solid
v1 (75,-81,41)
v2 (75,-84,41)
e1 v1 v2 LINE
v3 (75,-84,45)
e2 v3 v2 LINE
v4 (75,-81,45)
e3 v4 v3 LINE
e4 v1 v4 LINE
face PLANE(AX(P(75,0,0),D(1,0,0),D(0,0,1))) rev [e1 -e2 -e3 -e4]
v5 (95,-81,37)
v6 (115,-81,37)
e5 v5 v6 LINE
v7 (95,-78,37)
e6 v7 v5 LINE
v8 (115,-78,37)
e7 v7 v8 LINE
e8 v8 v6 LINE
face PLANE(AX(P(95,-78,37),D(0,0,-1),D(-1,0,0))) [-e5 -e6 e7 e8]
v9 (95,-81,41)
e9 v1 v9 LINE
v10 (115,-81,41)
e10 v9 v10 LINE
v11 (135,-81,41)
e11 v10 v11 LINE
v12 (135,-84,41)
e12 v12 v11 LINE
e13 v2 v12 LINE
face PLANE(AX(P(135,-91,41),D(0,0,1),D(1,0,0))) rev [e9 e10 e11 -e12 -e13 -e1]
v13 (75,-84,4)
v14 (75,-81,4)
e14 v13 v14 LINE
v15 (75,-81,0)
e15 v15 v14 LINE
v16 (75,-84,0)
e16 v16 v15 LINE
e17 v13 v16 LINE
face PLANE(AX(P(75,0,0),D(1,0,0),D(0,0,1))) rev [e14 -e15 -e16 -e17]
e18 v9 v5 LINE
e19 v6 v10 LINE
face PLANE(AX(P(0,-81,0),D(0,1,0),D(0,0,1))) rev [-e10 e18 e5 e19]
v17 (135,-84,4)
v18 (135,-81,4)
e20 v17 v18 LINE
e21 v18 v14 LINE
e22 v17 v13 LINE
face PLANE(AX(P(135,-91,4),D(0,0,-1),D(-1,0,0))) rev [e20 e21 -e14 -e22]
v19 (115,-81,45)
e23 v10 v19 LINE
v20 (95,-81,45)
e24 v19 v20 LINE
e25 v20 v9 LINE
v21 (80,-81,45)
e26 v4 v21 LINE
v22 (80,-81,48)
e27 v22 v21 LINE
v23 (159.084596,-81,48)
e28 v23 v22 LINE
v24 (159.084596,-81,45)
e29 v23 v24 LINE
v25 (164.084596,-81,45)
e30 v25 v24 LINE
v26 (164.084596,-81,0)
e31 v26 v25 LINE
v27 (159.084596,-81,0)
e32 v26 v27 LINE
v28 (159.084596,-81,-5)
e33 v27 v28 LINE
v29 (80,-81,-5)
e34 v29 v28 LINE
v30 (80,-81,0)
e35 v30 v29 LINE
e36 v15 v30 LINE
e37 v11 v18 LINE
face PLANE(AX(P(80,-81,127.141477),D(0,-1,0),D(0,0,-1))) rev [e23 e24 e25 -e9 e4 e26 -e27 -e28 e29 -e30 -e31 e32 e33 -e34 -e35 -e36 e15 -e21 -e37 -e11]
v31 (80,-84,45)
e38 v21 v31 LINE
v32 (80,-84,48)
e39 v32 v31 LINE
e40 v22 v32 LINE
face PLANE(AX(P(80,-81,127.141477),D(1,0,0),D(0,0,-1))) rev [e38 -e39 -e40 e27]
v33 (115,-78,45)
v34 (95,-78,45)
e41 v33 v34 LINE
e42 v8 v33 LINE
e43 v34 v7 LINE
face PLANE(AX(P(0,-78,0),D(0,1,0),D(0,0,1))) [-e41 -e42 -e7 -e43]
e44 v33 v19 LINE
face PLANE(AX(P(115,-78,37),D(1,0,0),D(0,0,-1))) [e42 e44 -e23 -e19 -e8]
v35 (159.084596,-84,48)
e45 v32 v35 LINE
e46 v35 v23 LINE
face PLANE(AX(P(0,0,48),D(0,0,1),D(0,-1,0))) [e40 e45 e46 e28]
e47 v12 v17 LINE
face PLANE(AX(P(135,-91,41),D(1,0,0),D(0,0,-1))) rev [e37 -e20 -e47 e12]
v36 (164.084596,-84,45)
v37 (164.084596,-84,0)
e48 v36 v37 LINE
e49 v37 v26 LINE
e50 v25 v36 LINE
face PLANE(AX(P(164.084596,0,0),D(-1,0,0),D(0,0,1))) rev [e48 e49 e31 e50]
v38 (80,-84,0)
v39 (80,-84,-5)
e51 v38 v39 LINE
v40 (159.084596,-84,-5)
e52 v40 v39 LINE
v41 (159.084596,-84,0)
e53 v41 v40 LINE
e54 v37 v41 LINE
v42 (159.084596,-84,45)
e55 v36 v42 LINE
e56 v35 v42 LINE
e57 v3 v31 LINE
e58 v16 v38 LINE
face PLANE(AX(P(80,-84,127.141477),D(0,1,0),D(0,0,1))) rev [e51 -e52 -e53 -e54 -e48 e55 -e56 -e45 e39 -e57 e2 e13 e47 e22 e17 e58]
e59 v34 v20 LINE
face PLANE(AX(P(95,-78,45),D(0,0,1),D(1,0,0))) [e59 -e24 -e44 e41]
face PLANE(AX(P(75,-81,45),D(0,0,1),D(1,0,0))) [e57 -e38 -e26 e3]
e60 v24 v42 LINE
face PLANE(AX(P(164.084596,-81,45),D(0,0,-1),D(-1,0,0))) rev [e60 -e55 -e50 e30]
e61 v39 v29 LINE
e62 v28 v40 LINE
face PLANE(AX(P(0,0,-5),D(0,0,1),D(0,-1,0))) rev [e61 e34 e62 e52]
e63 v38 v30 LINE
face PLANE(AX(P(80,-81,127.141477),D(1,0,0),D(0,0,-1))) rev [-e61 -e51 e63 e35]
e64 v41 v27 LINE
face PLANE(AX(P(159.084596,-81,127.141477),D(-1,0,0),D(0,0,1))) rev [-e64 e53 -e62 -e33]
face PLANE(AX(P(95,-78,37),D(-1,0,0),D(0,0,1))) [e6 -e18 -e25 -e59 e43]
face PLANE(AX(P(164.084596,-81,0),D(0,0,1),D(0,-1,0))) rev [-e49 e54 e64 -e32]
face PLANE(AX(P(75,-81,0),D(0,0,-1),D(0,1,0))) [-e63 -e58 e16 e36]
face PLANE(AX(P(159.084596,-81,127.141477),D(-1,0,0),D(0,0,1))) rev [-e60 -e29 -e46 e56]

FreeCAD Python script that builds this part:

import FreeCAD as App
import Part
import Sketcher

V = App.Vector

doc = App.newDocument("Part")
body = doc.addObject("PartDesign::Body", "Body")

sketch1 = doc.addObject("Sketcher::SketchObject", "Sketch")
body.addObject(sketch1)
sketch1.AttachmentSupport = (doc.XY_Plane, [""])
sketch1.MapMode = "FlatFace"
sketch1.addGeometry([
    Part.LineSegment(V(80, -81, 0), V(80, -84, 0)),
    Part.LineSegment(V(80, -84, 0), V(159.084596, -84, 0)),
    Part.LineSegment(V(159.084596, -84, 0), V(159.084596, -81, 0)),
    Part.LineSegment(V(159.084596, -81, 0), V(80, -81, 0)),
], False)
sketch1.addConstraint([
    Sketcher.Constraint("Coincident", 0, 2, 1, 1),
    Sketcher.Constraint("Coincident", 1, 2, 2, 1),
    Sketcher.Constraint("Coincident", 2, 2, 3, 1),
    Sketcher.Constraint("Coincident", 3, 2, 0, 1),
    Sketcher.Constraint("Vertical", 0),
    Sketcher.Constraint("Horizontal", 1),
    Sketcher.Constraint("Vertical", 2),
    Sketcher.Constraint("Horizontal", 3),
    Sketcher.Constraint("DistanceY", 0, 2, 0, 1, 3.0),
    Sketcher.Constraint("DistanceX", -1, 1, 0, 2, 80.0),
    Sketcher.Constraint("DistanceY", 0, 2, -1, 1, 84.0),
    Sketcher.Constraint("DistanceX", 1, 1, 1, 2, 79.084596),
])
pad1 = doc.addObject("PartDesign::Pad", "Pad")
body.addObject(pad1)
pad1.Profile = sketch1
pad1.Type = "TwoLengths"
pad1.Length = 48
pad1.Length2 = 5

sketch2 = doc.addObject("Sketcher::SketchObject", "Sketch001")
body.addObject(sketch2)
sketch2.AttachmentSupport = (doc.YZ_Plane, [""])
sketch2.MapMode = "FlatFace"
sketch2.AttachmentOffset = App.Placement(V(0, 0, 159.084596), App.Rotation())
sketch2.addGeometry([
    Part.LineSegment(V(-81, 45, 0), V(-84, 45, 0)),
    Part.LineSegment(V(-84, 45, 0), V(-84, 0, 0)),
    Part.LineSegment(V(-84, 0, 0), V(-81, 0, 0)),
    Part.LineSegment(V(-81, 0, 0), V(-81, 45, 0)),
], False)
sketch2.addConstraint([
    Sketcher.Constraint("Coincident", 0, 2, 1, 1),
    Sketcher.Constraint("Coincident", 1, 2, 2, 1),
    Sketcher.Constraint("Coincident", 2, 2, 3, 1),
    Sketcher.Constraint("Coincident", 3, 2, 0, 1),
    Sketcher.Constraint("Horizontal", 0),
    Sketcher.Constraint("Vertical", 1),
    Sketcher.Constraint("Horizontal", 2),
    Sketcher.Constraint("Vertical", 3),
    Sketcher.Constraint("PointOnObject", 1, 2, -1),
    Sketcher.Constraint("DistanceX", 0, 2, 0, 1, 3.0),
    Sketcher.Constraint("DistanceY", 1, 2, 1, 1, 45.0),
    Sketcher.Constraint("DistanceX", 0, 2, -1, 1, 84.0),
])
pad2 = doc.addObject("PartDesign::Pad", "Pad001")
body.addObject(pad2)
pad2.Profile = sketch2
pad2.Length = 5
doc.recompute()

datumplane = doc.addObject("PartDesign::Plane", "DatumPlane")
body.addObject(datumplane)
datumplane.AttachmentSupport = (doc.YZ_Plane, [""])
datumplane.MapMode = "FlatFace"
datumplane.AttachmentOffset = App.Placement(V(0, 0, 119.542298), App.Rotation())
mirrored = doc.addObject("PartDesign::Mirrored", "Mirrored")
body.addObject(mirrored)
mirrored.Originals = [pad2]
mirrored.MirrorPlane = (datumplane, [""])
body.Tip = mirrored

sketch3 = doc.addObject("Sketcher::SketchObject", "Sketch002")
body.addObject(sketch3)
sketch3.AttachmentSupport = (doc.XZ_Plane, [""])
sketch3.MapMode = "FlatFace"
sketch3.AttachmentOffset = App.Placement(V(0, 0, 81), App.Rotation())
sketch3.addGeometry([
    Part.LineSegment(V(75, 4, 0), V(75, 41, 0)),
    Part.LineSegment(V(75, 41, 0), V(135, 41, 0)),
    Part.LineSegment(V(135, 41, 0), V(135, 4, 0)),
    Part.LineSegment(V(135, 4, 0), V(75, 4, 0)),
], False)
sketch3.addConstraint([
    Sketcher.Constraint("Coincident", 0, 2, 1, 1),
    Sketcher.Constraint("Coincident", 1, 2, 2, 1),
    Sketcher.Constraint("Coincident", 2, 2, 3, 1),
    Sketcher.Constraint("Coincident", 3, 2, 0, 1),
    Sketcher.Constraint("Vertical", 0),
    Sketcher.Constraint("Horizontal", 1),
    Sketcher.Constraint("Vertical", 2),
    Sketcher.Constraint("Horizontal", 3),
    Sketcher.Constraint("DistanceX", 1, 1, 1, 2, 60.0),
    Sketcher.Constraint("DistanceY", 0, 1, 0, 2, 37.0),
    Sketcher.Constraint("DistanceX", -1, 1, 0, 2, 75.0),
    Sketcher.Constraint("DistanceY", -1, 1, 0, 2, 41.0),
])
pocket1 = doc.addObject("PartDesign::Pocket", "Pocket")
body.addObject(pocket1)
pocket1.Profile = sketch3
pocket1.Length = 10
pocket1.Reversed = True

sketch4 = doc.addObject("Sketcher::SketchObject", "Sketch003")
body.addObject(sketch4)
sketch4.AttachmentSupport = (doc.XZ_Plane, [""])
sketch4.MapMode = "FlatFace"
sketch4.AttachmentOffset = App.Placement(V(0, 0, 81), App.Rotation())
sketch4.addGeometry([
    Part.LineSegment(V(95, 45, 0), V(95, 37, 0)),
    Part.LineSegment(V(95, 37, 0), V(115, 37, 0)),
    Part.LineSegment(V(115, 37, 0), V(115, 45, 0)),
    Part.LineSegment(V(115, 45, 0), V(95, 45, 0)),
], False)
sketch4.addConstraint([
    Sketcher.Constraint("Coincident", 0, 2, 1, 1),
    Sketcher.Constraint("Coincident", 1, 2, 2, 1),
    Sketcher.Constraint("Coincident", 2, 2, 3, 1),
    Sketcher.Constraint("Coincident", 3, 2, 0, 1),
    Sketcher.Constraint("Vertical", 0),
    Sketcher.Constraint("Horizontal", 1),
    Sketcher.Constraint("Vertical", 2),
    Sketcher.Constraint("Horizontal", 3),
    Sketcher.Constraint("DistanceX", 1, 1, 1, 2, 20.0),
    Sketcher.Constraint("DistanceY", 0, 2, 0, 1, 8.0),
    Sketcher.Constraint("DistanceX", -1, 1, 0, 2, 95.0),
    Sketcher.Constraint("DistanceY", -1, 1, 0, 2, 37.0),
])
pad3 = doc.addObject("PartDesign::Pad", "Pad002")
body.addObject(pad3)
pad3.Profile = sketch4
pad3.Length = 3
pad3.Reversed = True

doc.recompute()
